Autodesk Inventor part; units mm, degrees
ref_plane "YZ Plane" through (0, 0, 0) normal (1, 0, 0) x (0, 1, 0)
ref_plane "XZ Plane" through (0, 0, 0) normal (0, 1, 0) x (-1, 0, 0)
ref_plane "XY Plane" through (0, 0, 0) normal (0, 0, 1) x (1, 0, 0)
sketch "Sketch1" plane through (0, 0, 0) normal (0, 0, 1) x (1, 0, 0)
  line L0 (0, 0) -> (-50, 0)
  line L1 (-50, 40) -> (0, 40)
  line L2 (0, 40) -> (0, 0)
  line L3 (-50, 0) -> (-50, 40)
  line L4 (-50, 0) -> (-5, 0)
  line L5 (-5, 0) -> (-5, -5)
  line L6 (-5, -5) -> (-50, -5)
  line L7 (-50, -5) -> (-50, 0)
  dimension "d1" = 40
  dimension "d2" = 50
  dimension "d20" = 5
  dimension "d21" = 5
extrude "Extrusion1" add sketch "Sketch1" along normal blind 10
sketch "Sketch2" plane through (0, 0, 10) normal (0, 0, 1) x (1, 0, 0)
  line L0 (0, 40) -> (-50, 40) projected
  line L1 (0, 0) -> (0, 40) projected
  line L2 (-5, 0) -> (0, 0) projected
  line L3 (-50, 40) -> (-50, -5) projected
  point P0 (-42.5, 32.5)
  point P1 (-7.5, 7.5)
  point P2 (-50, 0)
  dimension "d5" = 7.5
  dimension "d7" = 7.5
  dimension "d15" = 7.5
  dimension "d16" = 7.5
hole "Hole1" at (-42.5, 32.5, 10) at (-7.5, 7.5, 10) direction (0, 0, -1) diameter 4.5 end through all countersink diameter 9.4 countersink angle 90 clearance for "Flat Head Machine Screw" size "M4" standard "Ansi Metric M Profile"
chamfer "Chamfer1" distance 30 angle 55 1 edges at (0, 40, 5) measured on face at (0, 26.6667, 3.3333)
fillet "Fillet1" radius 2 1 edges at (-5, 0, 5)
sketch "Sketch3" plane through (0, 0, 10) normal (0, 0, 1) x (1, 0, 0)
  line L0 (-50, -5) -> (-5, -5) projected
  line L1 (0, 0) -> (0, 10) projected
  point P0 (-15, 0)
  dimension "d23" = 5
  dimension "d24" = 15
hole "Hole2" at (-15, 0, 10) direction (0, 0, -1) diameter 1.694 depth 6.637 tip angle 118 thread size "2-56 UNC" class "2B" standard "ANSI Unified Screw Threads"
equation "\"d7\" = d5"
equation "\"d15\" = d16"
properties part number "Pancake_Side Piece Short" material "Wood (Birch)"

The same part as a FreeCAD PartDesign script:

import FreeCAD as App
import Part
import Sketcher
from FreeCAD import Vector


def edges_at(feature, points):
    """Names of the edges that pass closest to the given points."""
    edges = feature.Shape.Edges
    near = lambda p: min(range(len(edges)), key=lambda i: edges[i].distToShape(Part.Vertex(*p))[0])
    return sorted({f"Edge{near(p) + 1}" for p in points})

doc = App.newDocument("Part")
body = doc.addObject("PartDesign::Body", "Body")

# Sketch on XY plane
sketch1 = body.newObject("Sketcher::SketchObject", "Sketch")
sketch1.AttachmentSupport = (doc.getObject("XY_Plane"), [""])
sketch1.MapMode = "FlatFace"
sketch1.addGeometry([
    Part.LineSegment(Vector(-5, 0, 0), Vector(0, 0, 0)),  # 0
    Part.LineSegment(Vector(0, 0, 0), Vector(0, 40, 0)),  # 1
    Part.LineSegment(Vector(0, 40, 0), Vector(-50, 40, 0)),  # 2
    Part.LineSegment(Vector(-50, 40, 0), Vector(-50, -5, 0)),  # 3
    Part.LineSegment(Vector(-50, -5, 0), Vector(-5, -5, 0)),  # 4
    Part.LineSegment(Vector(-5, -5, 0), Vector(-5, 0, 0)),  # 5
], False)
sketch1.addConstraint([
    Sketcher.Constraint("Coincident", 0, 2, 1, 1),
    Sketcher.Constraint("Coincident", 1, 2, 2, 1),
    Sketcher.Constraint("Coincident", 2, 2, 3, 1),
    Sketcher.Constraint("Coincident", 3, 2, 4, 1),
    Sketcher.Constraint("Coincident", 4, 2, 5, 1),
    Sketcher.Constraint("Coincident", 5, 2, 0, 1),
    Sketcher.Constraint("Horizontal", 0),
    Sketcher.Constraint("Vertical", 1),
    Sketcher.Constraint("Horizontal", 2),
    Sketcher.Constraint("Vertical", 3),
    Sketcher.Constraint("Horizontal", 4),
    Sketcher.Constraint("Vertical", 5),
    Sketcher.Constraint("Coincident", 0, 2, -1, 1),
    Sketcher.Constraint("Equal", 4, 3),
    Sketcher.Constraint("Equal", 0, 5),
    Sketcher.Constraint("DistanceX", 0, 1, 0, 2, 5.0),
    Sketcher.Constraint("DistanceX", 2, 2, 2, 1, 50.0),
])
pad1 = body.newObject("PartDesign::Pad", "Pad")
pad1.Profile = sketch1
pad1.Length = 10

# Sketch on XY plane
sketch2 = body.newObject("Sketcher::SketchObject", "Sketch001")
sketch2.AttachmentSupport = (doc.getObject("XY_Plane"), [""])
sketch2.MapMode = "FlatFace"
sketch2.AttachmentOffset = App.Placement(Vector(0, 0, 10), App.Rotation())
sketch2.addGeometry([
    Part.Circle(Vector(-42.5, 32.5, 0), Vector(0, 0, 1), 2.25),
    Part.Circle(Vector(-7.5, 7.5, 0), Vector(0, 0, 1), 2.25),
], False)
sketch2.addConstraint([
    Sketcher.Constraint("Equal", 0, 1),
    Sketcher.Constraint("Diameter", 0, 4.5),
    Sketcher.Constraint("DistanceX", 0, 3, 1, 3, 35.0),
    Sketcher.Constraint("DistanceY", 1, 3, 0, 3, 25.0),
    Sketcher.Constraint("DistanceX", 0, 3, -1, 1, 42.5),
    Sketcher.Constraint("DistanceY", -1, 1, 0, 3, 32.5),
])
doc.recompute()
hole = body.newObject("PartDesign::Hole", "Hole")
hole.Profile = sketch2
hole.ThreadType = "None"
hole.Diameter = 4.5
hole.DepthType = "ThroughAll"
hole.HoleCutType = "Countersink"
hole.HoleCutDiameter = 9.4
hole.HoleCutCountersinkAngle = 90
doc.recompute()

chamfer = body.newObject("PartDesign::Chamfer", "Chamfer")
chamfer.Base = (hole, edges_at(hole, [(0, 40, 5)]))
chamfer.ChamferType = "Distance and Angle"
chamfer.Size = 30
chamfer.Angle = 55
doc.recompute()

fillet = body.newObject("PartDesign::Fillet", "Fillet")
fillet.Base = (chamfer, edges_at(chamfer, [(-5, 0, 5)]))
fillet.Radius = 2

# Sketch on XY plane
sketch3 = body.newObject("Sketcher::SketchObject", "Sketch002")
sketch3.AttachmentSupport = (doc.getObject("XY_Plane"), [""])
sketch3.MapMode = "FlatFace"
sketch3.AttachmentOffset = App.Placement(Vector(0, 0, 10), App.Rotation())
sketch3.addGeometry(Part.Circle(Vector(-15, 0, 0), Vector(0, 0, 1), 0.847), False)
sketch3.addConstraint([
    Sketcher.Constraint("PointOnObject", 0, 3, -1),
    Sketcher.Constraint("Diameter", 0, 1.694),
    Sketcher.Constraint("DistanceX", 0, 3, -1, 1, 15.0),
])
doc.recompute()
hole2 = body.newObject("PartDesign::Hole", "Hole001")
hole2.Profile = sketch3
hole2.ThreadType = "None"
hole2.Diameter = 1.694
hole2.DepthType = "Dimension"
hole2.Depth = 6.637
hole2.DrillPoint = "Angled"
hole2.DrillPointAngle = 118

doc.recompute()
